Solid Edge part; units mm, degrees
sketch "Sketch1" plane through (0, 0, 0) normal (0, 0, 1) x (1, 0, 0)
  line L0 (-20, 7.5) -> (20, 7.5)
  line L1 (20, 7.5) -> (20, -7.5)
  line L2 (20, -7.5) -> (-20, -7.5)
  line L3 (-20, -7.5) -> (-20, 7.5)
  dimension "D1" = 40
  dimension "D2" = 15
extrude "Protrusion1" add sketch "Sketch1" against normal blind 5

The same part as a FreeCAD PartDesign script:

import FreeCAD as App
import Part
import Sketcher
from FreeCAD import Vector

doc = App.newDocument("Part")
body = doc.addObject("PartDesign::Body", "Body")

sketch1 = doc.addObject("Sketcher::SketchObject", "Sketch")
body.addObject(sketch1)
sketch1.AttachmentSupport = (doc.XY_Plane, [""])
sketch1.MapMode = "FlatFace"
sketch1.addGeometry(Part.LineSegment(Vector(20, 7.5, 0), Vector(-20, 7.5, 0)), False)
sketch1.addGeometry(Part.LineSegment(Vector(-20, 7.5, 0), Vector(-20, -7.5, 0)), False)
sketch1.addGeometry(Part.LineSegment(Vector(-20, -7.5, 0), Vector(20, -7.5, 0)), False)
sketch1.addGeometry(Part.LineSegment(Vector(20, -7.5, 0), Vector(20, 7.5, 0)), False)
sketch1.addConstraint(Sketcher.Constraint("Coincident", 0, 2, 1, 1))
sketch1.addConstraint(Sketcher.Constraint("Coincident", 1, 2, 2, 1))
sketch1.addConstraint(Sketcher.Constraint("Coincident", 2, 2, 3, 1))
sketch1.addConstraint(Sketcher.Constraint("Coincident", 3, 2, 0, 1))
sketch1.addConstraint(Sketcher.Constraint("Horizontal", 0))
sketch1.addConstraint(Sketcher.Constraint("Vertical", 1))
sketch1.addConstraint(Sketcher.Constraint("Horizontal", 2))
sketch1.addConstraint(Sketcher.Constraint("Vertical", 3))
sketch1.addConstraint(Sketcher.Constraint("Symmetric", 0, 2, 2, 2, -1, 1))
sketch1.addConstraint(Sketcher.Constraint("DistanceX", 0, 2, -1, 1, 20.0))
sketch1.addConstraint(Sketcher.Constraint("DistanceY", 1, 2, 1, 1, 15.0))
pad1 = doc.addObject("PartDesign::Pad", "Pad")
body.addObject(pad1)
pad1.Profile = sketch1
pad1.Length = 5
pad1.Reversed = True

doc.recompute()
